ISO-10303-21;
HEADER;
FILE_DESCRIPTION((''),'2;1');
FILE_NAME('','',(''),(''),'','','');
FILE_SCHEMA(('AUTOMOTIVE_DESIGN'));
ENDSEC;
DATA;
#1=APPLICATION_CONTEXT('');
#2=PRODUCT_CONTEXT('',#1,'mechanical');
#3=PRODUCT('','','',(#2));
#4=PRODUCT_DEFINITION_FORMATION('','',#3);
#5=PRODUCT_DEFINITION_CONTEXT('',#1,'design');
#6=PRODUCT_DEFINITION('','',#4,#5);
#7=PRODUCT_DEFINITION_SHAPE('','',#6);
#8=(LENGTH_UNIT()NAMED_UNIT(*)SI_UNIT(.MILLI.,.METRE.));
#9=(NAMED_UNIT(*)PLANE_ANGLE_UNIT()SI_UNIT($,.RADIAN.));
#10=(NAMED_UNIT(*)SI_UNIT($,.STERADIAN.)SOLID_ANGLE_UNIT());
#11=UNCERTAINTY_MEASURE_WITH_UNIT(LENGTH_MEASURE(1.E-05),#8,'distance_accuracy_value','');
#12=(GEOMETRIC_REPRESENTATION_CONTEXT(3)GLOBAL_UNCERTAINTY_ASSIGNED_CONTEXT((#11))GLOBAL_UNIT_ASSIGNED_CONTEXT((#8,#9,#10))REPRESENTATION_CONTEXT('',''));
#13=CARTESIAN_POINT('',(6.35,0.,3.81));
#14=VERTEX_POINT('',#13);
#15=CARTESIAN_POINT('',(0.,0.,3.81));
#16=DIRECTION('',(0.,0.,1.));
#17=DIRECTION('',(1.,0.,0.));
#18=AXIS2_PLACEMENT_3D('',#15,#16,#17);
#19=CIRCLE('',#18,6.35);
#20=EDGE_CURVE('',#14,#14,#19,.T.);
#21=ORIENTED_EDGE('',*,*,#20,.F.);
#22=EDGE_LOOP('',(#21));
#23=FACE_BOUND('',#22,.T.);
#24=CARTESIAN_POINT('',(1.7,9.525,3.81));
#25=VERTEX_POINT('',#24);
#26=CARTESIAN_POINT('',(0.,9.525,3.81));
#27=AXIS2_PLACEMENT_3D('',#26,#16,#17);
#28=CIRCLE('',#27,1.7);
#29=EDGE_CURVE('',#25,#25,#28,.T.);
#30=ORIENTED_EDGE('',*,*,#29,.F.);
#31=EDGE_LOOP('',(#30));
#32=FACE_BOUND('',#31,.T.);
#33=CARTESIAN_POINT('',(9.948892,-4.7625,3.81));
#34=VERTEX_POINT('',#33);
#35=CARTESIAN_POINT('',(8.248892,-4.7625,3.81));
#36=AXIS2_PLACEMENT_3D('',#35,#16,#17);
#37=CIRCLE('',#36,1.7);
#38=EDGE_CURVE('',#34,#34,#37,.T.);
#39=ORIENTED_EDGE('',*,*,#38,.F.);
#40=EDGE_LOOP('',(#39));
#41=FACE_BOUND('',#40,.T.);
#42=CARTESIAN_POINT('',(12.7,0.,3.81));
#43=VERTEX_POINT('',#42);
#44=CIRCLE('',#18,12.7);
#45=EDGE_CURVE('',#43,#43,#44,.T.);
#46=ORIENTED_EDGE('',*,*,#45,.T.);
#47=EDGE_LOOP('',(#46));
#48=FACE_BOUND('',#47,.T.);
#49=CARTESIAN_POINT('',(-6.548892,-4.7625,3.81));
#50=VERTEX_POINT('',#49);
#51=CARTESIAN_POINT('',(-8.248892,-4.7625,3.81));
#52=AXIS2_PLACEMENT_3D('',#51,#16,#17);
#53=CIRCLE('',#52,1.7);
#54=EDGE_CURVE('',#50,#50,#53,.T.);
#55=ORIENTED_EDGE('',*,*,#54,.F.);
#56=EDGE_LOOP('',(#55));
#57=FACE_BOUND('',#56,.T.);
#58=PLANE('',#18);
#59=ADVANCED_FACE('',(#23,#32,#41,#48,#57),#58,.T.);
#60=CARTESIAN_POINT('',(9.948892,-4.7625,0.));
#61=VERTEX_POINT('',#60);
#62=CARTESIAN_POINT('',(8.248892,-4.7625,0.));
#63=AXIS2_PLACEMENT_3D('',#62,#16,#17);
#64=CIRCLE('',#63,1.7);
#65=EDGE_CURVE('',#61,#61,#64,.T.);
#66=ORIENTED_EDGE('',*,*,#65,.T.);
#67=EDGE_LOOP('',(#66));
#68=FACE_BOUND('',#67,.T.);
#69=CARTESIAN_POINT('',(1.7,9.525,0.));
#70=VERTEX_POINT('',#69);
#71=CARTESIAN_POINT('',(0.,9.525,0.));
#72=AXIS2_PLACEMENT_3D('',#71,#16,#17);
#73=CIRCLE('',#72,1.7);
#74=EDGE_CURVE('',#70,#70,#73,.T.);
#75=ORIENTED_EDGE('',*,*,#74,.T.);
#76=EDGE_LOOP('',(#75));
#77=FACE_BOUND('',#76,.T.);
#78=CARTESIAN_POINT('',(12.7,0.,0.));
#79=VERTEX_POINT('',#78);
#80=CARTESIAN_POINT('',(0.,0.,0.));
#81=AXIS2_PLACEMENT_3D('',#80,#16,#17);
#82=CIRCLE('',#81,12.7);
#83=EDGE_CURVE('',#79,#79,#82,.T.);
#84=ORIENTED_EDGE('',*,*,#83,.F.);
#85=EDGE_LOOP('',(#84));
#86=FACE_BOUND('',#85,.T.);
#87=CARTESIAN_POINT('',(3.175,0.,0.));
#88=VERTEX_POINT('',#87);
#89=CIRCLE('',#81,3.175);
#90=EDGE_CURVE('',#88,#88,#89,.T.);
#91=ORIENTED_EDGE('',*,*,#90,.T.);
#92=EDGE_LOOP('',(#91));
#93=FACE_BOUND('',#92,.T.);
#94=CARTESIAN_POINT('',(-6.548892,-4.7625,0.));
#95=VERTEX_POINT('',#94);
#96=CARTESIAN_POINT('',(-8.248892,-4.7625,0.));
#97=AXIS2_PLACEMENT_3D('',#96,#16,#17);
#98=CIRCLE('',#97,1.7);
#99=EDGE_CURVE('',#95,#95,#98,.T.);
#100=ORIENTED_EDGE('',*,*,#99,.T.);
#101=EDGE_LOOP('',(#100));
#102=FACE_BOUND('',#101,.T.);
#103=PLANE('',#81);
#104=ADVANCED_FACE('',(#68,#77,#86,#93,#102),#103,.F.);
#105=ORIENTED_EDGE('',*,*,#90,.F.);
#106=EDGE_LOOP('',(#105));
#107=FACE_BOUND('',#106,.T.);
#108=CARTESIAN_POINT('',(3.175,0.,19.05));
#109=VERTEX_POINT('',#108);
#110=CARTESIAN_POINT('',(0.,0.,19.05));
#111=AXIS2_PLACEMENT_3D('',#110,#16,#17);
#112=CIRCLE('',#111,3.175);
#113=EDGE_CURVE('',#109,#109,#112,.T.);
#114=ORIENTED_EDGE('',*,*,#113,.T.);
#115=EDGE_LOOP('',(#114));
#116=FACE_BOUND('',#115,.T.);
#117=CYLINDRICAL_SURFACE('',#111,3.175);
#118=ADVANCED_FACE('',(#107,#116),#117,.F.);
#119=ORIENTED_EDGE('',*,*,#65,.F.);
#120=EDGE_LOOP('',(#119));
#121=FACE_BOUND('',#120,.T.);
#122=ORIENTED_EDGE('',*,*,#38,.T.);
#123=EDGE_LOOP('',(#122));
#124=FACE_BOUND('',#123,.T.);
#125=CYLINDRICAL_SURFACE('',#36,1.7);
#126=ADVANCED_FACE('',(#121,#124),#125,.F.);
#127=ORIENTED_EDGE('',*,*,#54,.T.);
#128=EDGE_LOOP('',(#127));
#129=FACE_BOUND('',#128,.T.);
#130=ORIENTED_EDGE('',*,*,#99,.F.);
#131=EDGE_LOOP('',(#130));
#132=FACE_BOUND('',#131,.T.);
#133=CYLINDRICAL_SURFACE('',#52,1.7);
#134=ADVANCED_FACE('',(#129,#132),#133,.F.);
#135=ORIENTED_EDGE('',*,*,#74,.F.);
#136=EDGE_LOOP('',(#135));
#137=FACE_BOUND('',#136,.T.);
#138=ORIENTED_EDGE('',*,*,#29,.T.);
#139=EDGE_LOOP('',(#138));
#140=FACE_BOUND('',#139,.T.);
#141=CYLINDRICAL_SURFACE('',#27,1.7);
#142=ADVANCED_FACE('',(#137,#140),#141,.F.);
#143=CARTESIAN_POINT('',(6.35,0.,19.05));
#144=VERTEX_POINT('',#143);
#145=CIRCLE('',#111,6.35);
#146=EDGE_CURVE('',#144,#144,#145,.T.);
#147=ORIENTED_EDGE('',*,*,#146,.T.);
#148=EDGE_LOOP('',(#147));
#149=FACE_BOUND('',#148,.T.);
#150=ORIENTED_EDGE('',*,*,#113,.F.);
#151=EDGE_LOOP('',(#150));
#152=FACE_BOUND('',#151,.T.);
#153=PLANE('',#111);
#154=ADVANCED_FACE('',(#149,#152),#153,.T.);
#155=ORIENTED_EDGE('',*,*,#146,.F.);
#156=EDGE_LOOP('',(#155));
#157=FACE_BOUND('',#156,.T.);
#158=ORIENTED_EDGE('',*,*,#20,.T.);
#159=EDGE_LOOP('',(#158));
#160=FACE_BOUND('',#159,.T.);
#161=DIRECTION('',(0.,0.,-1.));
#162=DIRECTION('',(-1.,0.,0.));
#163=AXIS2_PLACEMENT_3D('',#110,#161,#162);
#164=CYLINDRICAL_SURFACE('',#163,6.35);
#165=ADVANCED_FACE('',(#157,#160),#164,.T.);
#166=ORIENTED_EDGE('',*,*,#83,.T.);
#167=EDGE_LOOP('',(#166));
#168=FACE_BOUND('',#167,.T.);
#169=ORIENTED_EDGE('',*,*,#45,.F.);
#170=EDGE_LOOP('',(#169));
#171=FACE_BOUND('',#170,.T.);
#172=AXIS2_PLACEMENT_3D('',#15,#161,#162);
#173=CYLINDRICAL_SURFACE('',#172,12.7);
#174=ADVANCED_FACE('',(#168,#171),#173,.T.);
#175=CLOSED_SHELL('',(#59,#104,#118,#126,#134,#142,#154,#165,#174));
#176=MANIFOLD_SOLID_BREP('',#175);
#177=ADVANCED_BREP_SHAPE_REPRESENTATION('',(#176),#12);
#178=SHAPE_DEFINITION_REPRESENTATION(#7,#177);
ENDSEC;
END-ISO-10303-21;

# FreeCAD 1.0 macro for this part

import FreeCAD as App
import Part
import Sketcher

V = App.Vector
Q = App.Units.Quantity

doc = App.newDocument("Part")
body = doc.addObject("PartDesign::Body", "Body")

# Sketch on XY plane
sketch1 = doc.addObject("Sketcher::SketchObject", "Sketch")
body.addObject(sketch1)
sketch1.AttachmentSupport = (doc.XY_Plane, [""])
sketch1.MapMode = "FlatFace"
sketch1.addGeometry(Part.Circle(V(0, 0, 0), V(0, 0, 1), 12.7), False)
sketch1.addConstraint([
    Sketcher.Constraint("Coincident", 0, 3, -1, 1),
    Sketcher.Constraint("Diameter", 0, Q("1 in")),
])
pad1 = doc.addObject("PartDesign::Pad", "Pad")
body.addObject(pad1)
pad1.Profile = sketch1
pad1.Length = Q("0.15 in")

# Sketch on XY plane
sketch2 = doc.addObject("Sketcher::SketchObject", "Sketch001")
body.addObject(sketch2)
sketch2.AttachmentSupport = (doc.XY_Plane, [""])
sketch2.MapMode = "FlatFace"
sketch2.AttachmentOffset = App.Placement(V(0, 0, 0.15 * 25.4), App.Rotation())
sketch2.addGeometry(Part.Circle(V(0, 0, 0), V(0, 0, 1), 6.35), False)
sketch2.addConstraint([
    Sketcher.Constraint("Coincident", 0, 3, -1, 1),
    Sketcher.Constraint("Diameter", 0, Q("0.5 in")),
])
pad2 = doc.addObject("PartDesign::Pad", "Pad001")
body.addObject(pad2)
pad2.Profile = sketch2
pad2.Length = Q("0.6 in")

# Sketch on XY plane
sketch3 = doc.addObject("Sketcher::SketchObject", "Sketch002")
body.addObject(sketch3)
sketch3.AttachmentSupport = (doc.XY_Plane, [""])
sketch3.MapMode = "FlatFace"
sketch3.AttachmentOffset = App.Placement(V(0, 0, 0.75 * 25.4), App.Rotation())
sketch3.addGeometry(Part.Circle(V(0, 0, 0), V(0, 0, 1), 3.175), False)
sketch3.addConstraint([
    Sketcher.Constraint("Coincident", 0, 3, -1, 1),
    Sketcher.Constraint("Diameter", 0, Q("0.25 in")),
])
doc.recompute()
hole = doc.addObject("PartDesign::Hole", "Hole")
body.addObject(hole)
hole.Profile = sketch3
hole.ThreadType = "None"
hole.Diameter = Q("0.25 in")
hole.DepthType = "ThroughAll"

# Sketch on XY plane
sketch4 = doc.addObject("Sketcher::SketchObject", "Sketch003")
body.addObject(sketch4)
sketch4.AttachmentSupport = (doc.XY_Plane, [""])
sketch4.MapMode = "FlatFace"
sketch4.AttachmentOffset = App.Placement(V(0, 0, 0.15 * 25.4), App.Rotation())
sketch4.addGeometry(Part.Circle(V(0, 9.525, 0), V(0, 0, 1), 1.7), False)
sketch4.addConstraint([
    Sketcher.Constraint("PointOnObject", 0, 3, -2),
    Sketcher.Constraint("Diameter", 0, 3.4),
    Sketcher.Constraint("DistanceY", -1, 1, 0, 3, Q("0.375 in")),
])
doc.recompute()
hole2 = doc.addObject("PartDesign::Hole", "Hole001")
body.addObject(hole2)
hole2.Profile = sketch4
hole2.ThreadType = "None"
hole2.Diameter = 3.4
hole2.DepthType = "ThroughAll"
doc.recompute()

polarpattern = doc.addObject("PartDesign::PolarPattern", "PolarPattern")
body.addObject(polarpattern)
polarpattern.Originals = [hole2]
polarpattern.Axis = (doc.Z_Axis, [""])
polarpattern.Angle = 360
polarpattern.Occurrences = 3
body.Tip = polarpattern

doc.recompute()
